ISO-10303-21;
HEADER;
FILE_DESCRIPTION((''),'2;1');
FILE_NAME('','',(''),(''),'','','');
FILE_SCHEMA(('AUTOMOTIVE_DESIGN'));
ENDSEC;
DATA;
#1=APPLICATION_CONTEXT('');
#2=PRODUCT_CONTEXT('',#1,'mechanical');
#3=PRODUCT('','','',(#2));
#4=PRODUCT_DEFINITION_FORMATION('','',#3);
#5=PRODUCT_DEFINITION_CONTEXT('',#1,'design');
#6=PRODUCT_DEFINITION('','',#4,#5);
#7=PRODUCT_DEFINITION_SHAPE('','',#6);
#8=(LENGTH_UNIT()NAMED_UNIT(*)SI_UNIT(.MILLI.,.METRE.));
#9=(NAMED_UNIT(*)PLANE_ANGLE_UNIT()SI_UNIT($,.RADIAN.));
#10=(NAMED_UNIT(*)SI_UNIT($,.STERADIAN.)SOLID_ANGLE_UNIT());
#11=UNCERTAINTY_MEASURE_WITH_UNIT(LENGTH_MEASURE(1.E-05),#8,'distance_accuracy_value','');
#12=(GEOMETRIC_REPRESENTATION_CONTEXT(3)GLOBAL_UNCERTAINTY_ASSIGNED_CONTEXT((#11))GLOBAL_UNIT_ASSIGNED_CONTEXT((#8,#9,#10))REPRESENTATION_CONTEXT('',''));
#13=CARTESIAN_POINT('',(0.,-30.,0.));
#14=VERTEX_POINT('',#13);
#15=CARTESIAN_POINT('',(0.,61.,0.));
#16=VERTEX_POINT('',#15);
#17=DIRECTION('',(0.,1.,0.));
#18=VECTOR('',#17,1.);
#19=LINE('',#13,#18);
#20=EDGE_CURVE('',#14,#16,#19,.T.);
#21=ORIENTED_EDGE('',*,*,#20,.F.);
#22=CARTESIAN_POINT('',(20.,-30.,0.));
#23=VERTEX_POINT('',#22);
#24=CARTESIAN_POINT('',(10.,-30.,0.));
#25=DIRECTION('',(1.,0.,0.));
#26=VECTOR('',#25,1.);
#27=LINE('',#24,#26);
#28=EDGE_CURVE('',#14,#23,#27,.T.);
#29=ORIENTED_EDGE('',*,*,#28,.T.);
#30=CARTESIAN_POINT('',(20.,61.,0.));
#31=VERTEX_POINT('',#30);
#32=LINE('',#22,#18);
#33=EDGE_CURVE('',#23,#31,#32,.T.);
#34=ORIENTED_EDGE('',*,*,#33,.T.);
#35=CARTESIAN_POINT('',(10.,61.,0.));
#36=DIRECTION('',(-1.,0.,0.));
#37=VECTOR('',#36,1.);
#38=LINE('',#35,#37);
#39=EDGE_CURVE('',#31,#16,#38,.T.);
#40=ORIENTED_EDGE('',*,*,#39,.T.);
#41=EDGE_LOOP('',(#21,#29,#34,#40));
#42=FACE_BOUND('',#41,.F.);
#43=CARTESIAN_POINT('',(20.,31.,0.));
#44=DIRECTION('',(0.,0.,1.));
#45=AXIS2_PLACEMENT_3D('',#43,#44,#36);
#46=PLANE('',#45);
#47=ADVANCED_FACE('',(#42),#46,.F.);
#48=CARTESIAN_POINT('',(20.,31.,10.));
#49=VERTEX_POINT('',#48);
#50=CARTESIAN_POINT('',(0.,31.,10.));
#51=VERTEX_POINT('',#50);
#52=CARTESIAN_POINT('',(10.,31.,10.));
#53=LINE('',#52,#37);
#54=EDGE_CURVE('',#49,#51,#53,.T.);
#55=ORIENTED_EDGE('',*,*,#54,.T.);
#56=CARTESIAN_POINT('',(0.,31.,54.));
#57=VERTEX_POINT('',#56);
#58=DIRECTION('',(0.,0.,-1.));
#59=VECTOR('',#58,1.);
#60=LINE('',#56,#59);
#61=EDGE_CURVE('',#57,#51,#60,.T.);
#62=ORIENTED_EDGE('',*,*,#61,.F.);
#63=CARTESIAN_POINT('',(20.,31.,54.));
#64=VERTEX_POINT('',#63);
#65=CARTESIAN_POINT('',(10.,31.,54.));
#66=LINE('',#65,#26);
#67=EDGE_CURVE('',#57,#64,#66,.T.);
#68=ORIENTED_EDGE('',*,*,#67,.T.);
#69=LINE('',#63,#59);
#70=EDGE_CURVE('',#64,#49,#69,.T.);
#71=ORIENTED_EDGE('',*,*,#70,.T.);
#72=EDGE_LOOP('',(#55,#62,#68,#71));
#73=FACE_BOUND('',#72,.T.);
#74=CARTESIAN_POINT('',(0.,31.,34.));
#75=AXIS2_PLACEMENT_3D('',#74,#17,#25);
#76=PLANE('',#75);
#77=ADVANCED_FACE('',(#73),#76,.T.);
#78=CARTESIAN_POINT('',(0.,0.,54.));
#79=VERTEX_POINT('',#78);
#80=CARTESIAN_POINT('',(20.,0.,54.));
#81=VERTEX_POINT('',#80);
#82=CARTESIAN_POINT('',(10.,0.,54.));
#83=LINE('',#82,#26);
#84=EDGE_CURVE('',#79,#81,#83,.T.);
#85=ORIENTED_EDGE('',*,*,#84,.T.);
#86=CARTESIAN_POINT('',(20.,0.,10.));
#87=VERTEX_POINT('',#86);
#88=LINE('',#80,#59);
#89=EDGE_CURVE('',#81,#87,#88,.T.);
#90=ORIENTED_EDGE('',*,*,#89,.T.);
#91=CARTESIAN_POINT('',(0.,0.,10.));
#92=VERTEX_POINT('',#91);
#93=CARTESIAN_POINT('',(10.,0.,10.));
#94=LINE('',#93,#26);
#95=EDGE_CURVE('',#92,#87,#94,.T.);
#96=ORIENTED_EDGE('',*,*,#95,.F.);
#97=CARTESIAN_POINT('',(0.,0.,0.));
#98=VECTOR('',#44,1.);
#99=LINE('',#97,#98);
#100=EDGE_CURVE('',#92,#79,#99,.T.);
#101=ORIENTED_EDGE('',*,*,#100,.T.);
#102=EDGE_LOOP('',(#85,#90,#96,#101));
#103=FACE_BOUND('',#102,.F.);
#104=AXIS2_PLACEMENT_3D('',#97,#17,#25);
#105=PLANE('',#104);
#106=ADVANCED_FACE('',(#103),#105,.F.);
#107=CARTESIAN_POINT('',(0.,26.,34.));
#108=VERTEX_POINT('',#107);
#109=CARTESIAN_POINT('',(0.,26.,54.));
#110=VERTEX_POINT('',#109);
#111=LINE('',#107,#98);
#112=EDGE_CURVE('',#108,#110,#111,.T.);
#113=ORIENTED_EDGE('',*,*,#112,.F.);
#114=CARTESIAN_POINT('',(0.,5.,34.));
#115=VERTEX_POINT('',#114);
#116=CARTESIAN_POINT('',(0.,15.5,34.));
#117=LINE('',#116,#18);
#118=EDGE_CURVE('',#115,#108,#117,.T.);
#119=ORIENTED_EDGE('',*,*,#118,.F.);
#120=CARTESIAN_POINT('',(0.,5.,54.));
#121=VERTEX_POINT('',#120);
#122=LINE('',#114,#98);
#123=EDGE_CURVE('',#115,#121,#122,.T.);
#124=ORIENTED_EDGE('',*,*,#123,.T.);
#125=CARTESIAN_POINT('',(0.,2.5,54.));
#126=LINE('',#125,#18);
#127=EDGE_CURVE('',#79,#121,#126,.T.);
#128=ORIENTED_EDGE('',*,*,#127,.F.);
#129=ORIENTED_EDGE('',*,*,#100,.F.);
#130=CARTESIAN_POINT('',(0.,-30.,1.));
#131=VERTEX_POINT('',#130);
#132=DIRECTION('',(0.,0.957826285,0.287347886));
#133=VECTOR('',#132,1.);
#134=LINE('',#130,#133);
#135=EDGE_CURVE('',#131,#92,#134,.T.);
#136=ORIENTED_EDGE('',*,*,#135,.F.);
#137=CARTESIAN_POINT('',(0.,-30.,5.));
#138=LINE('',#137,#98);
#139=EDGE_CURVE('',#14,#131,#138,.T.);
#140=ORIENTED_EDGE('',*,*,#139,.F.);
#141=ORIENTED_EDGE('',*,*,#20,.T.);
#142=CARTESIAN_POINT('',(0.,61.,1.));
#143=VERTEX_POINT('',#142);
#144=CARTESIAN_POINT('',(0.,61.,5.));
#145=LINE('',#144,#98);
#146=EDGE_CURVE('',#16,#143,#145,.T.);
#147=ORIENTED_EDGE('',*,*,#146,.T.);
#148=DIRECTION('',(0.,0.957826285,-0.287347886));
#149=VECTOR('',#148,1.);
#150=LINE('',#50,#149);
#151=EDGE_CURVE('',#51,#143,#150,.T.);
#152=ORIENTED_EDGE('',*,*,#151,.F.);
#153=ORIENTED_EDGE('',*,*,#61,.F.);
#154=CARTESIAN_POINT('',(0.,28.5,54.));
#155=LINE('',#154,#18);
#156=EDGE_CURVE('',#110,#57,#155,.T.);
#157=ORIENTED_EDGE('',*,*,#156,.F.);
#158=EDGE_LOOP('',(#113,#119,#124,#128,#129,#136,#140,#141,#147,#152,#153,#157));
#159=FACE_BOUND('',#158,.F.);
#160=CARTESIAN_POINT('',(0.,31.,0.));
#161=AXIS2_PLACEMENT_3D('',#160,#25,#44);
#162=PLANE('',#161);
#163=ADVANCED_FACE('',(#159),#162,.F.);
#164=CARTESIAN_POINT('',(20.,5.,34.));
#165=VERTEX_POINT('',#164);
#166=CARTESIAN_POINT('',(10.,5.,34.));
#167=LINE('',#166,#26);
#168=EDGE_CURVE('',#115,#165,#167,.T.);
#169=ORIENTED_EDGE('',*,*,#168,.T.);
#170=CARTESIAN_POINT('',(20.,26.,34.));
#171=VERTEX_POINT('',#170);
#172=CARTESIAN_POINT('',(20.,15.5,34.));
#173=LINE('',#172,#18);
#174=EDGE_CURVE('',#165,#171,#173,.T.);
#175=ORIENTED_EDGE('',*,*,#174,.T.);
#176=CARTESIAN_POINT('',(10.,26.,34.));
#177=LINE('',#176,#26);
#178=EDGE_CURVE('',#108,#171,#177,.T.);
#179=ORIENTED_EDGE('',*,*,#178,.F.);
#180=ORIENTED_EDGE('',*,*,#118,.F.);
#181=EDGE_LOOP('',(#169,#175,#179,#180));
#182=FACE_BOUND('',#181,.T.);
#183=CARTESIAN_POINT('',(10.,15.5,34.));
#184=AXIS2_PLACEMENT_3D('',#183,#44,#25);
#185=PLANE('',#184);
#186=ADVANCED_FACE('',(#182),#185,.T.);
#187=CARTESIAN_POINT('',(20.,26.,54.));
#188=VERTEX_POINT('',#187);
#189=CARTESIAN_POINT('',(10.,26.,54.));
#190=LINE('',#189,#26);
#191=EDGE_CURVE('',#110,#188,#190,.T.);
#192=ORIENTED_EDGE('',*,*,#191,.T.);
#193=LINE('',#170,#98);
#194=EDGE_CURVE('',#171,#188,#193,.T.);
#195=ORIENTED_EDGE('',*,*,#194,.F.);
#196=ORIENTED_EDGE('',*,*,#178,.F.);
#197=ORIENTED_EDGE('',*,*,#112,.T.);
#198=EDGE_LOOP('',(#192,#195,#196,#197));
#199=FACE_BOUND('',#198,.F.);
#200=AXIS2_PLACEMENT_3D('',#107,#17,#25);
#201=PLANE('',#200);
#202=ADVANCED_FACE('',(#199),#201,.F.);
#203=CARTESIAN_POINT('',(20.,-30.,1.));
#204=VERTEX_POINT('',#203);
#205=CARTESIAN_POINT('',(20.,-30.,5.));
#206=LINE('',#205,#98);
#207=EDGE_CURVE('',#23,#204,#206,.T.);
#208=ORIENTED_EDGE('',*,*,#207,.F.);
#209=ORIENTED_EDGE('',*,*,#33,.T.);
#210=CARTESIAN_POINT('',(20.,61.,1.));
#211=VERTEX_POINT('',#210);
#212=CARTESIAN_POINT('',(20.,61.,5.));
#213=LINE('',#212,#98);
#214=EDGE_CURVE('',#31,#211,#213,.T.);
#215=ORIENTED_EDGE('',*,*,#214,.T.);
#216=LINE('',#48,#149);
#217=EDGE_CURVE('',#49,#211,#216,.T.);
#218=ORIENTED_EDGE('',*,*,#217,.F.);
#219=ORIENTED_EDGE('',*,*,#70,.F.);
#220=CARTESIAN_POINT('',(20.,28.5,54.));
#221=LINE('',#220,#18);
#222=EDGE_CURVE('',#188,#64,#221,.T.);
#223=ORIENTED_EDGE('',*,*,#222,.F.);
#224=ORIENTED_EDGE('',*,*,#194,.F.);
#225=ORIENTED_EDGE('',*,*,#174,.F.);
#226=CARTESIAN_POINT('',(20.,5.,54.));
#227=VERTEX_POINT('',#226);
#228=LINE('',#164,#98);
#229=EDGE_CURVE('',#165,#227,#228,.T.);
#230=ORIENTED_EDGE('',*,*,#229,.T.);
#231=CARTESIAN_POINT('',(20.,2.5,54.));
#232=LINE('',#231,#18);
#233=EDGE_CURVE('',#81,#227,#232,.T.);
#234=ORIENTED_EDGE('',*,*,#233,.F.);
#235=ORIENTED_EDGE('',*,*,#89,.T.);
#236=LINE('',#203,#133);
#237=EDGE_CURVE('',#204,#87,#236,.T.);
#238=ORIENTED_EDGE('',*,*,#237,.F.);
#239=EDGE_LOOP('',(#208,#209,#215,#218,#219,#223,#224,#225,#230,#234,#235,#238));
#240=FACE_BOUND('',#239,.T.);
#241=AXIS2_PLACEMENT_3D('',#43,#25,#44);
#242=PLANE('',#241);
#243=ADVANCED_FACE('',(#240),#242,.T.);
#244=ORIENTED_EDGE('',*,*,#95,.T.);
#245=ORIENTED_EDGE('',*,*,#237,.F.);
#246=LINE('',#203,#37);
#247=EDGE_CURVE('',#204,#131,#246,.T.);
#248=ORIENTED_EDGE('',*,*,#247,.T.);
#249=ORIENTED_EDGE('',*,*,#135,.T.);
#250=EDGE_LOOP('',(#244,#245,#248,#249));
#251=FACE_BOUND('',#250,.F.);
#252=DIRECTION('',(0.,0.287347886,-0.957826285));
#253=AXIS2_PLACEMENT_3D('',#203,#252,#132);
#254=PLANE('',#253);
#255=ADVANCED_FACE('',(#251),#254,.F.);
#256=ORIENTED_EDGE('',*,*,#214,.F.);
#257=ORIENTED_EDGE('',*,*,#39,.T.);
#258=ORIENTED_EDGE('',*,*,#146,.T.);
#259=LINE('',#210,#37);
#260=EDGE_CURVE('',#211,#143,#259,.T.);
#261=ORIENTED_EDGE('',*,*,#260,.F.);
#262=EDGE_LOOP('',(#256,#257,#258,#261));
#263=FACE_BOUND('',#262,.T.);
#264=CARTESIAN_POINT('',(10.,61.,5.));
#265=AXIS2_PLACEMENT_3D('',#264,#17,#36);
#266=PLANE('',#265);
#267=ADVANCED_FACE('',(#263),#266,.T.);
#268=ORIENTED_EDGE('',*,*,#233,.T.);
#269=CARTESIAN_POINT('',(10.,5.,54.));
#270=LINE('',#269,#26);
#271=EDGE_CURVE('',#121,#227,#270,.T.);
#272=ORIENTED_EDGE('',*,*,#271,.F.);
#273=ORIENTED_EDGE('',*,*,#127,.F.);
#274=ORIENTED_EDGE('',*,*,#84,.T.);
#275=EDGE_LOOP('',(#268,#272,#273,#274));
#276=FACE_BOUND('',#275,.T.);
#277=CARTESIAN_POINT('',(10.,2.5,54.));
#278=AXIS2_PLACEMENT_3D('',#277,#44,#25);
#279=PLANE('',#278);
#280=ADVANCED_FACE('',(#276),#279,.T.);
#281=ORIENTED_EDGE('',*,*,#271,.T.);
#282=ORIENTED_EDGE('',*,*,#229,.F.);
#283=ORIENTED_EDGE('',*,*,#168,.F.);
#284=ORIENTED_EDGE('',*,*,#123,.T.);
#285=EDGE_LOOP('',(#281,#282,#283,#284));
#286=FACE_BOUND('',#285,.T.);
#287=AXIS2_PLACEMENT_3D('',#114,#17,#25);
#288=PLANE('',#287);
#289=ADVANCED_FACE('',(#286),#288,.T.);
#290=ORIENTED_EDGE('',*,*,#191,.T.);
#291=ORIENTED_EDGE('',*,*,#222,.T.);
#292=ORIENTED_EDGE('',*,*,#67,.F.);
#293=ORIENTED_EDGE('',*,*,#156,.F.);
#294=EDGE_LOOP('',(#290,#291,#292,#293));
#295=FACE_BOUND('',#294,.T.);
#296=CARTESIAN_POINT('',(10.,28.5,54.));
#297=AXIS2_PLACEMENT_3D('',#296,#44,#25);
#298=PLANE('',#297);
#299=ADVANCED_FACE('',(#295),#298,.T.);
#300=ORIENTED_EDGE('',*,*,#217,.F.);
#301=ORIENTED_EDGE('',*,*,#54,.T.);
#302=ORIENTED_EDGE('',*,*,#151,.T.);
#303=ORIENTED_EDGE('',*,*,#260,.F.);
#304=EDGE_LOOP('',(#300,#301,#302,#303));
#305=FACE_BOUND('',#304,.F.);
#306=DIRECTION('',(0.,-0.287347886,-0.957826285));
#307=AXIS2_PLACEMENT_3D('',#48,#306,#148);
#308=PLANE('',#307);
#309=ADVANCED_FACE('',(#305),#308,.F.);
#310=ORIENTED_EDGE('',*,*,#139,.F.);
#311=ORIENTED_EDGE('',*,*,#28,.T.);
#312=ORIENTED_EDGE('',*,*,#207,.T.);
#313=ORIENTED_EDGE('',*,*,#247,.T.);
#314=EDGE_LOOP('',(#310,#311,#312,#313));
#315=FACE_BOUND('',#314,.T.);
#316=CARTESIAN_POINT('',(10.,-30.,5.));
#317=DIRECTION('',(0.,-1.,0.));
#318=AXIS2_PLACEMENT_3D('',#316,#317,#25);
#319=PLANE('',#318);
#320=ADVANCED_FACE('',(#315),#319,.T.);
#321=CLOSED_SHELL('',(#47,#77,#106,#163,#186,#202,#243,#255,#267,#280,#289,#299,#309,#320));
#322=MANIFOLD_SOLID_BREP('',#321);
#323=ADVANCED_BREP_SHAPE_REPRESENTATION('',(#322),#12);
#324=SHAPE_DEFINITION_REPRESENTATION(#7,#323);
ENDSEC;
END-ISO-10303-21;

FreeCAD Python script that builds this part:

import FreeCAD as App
import Part
import Sketcher


def add_polygon(sketch, points):
    """Adds a closed chain of lines whose ends are joined by coincident constraints."""
    first, n = sketch.GeometryCount, len(points)
    for a, b in zip(points, points[1:] + points[:1]):
        sketch.addGeometry(Part.LineSegment(App.Vector(*a, 0), App.Vector(*b, 0)), False)
    for i in range(n):
        sketch.addConstraint(Sketcher.Constraint("Coincident", first + i, 2, first + (i + 1) % n, 1))

doc = App.newDocument("Part")
body = doc.addObject("PartDesign::Body", "Body")

# Sketch on XY plane
sketch1 = body.newObject("Sketcher::SketchObject", "Sketch")
sketch1.AttachmentSupport = (doc.getObject("XY_Plane"), [""])
sketch1.MapMode = "FlatFace"
add_polygon(sketch1, [(0, 31), (0, 0), (20, 0), (20, 31)])  # lines 0-3
sketch1.addConstraint([
    Sketcher.Constraint("Vertical", 0),
    Sketcher.Constraint("Horizontal", 1),
    Sketcher.Constraint("Vertical", 2),
    Sketcher.Constraint("Horizontal", 3),
    Sketcher.Constraint("Coincident", 0, 2, -1, 1),
    Sketcher.Constraint("DistanceX", 1, 1, 1, 2, 20.0),
    Sketcher.Constraint("DistanceY", 0, 2, 0, 1, 31.0),
])
pad1 = body.newObject("PartDesign::Pad", "Pad")
pad1.Profile = sketch1
pad1.Length = 34

# Sketch on XY plane
sketch2 = body.newObject("Sketcher::SketchObject", "Sketch001")
sketch2.AttachmentSupport = (doc.getObject("XY_Plane"), [""])
sketch2.MapMode = "FlatFace"
sketch2.AttachmentOffset = App.Placement(App.Vector(0, 0, 34), App.Rotation())
add_polygon(sketch2, [(0, 31), (0, 26), (20, 26), (20, 31)])  # lines 0-3
add_polygon(sketch2, [(0, 5), (0, 0), (20, 0), (20, 5)])  # lines 4-7
sketch2.addConstraint([
    Sketcher.Constraint("Vertical", 0),
    Sketcher.Constraint("Horizontal", 1),
    Sketcher.Constraint("Vertical", 2),
    Sketcher.Constraint("Horizontal", 3),
    Sketcher.Constraint("Vertical", 4),
    Sketcher.Constraint("Horizontal", 5),
    Sketcher.Constraint("Vertical", 6),
    Sketcher.Constraint("Horizontal", 7),
    Sketcher.Constraint("Coincident", 4, 2, -1, 1),
    Sketcher.Constraint("PointOnObject", 0, 2, -2),
    Sketcher.Constraint("Vertical", 2, 2, 5, 2),
    Sketcher.Constraint("Equal", 2, 4),
    Sketcher.Constraint("DistanceX", 1, 1, 1, 2, 20.0),
    Sketcher.Constraint("DistanceY", 0, 2, 0, 1, 5.0),
    Sketcher.Constraint("DistanceY", -1, 1, 0, 2, 26.0),
])
pad2 = body.newObject("PartDesign::Pad", "Pad001")
pad2.Profile = sketch2
pad2.Length = 20

# Sketch on XZ plane
sketch3 = body.newObject("Sketcher::SketchObject", "Sketch002")
sketch3.AttachmentSupport = (doc.getObject("XZ_Plane"), [""])
sketch3.MapMode = "FlatFace"
add_polygon(sketch3, [(0, 10), (0, 0), (20, 0), (20, 10)])  # lines 0-3
sketch3.addConstraint([
    Sketcher.Constraint("Vertical", 0),
    Sketcher.Constraint("Horizontal", 1),
    Sketcher.Constraint("Vertical", 2),
    Sketcher.Constraint("Horizontal", 3),
    Sketcher.Constraint("Coincident", 0, 2, -1, 1),
    Sketcher.Constraint("DistanceX", 1, 1, 1, 2, 20.0),
    Sketcher.Constraint("DistanceY", 0, 2, 0, 1, 10.0),
])
pad3 = body.newObject("PartDesign::Pad", "Pad002")
pad3.Profile = sketch3
pad3.Length = 30

# Sketch on XZ plane
sketch4 = body.newObject("Sketcher::SketchObject", "Sketch003")
sketch4.AttachmentSupport = (doc.getObject("XZ_Plane"), [""])
sketch4.MapMode = "FlatFace"
sketch4.AttachmentOffset = App.Placement(App.Vector(0, 0, -31), App.Rotation())
add_polygon(sketch4, [(20, 10), (20, 0), (0, 0), (0, 10)])  # lines 0-3
sketch4.addConstraint([
    Sketcher.Constraint("Vertical", 0),
    Sketcher.Constraint("Horizontal", 1),
    Sketcher.Constraint("Vertical", 2),
    Sketcher.Constraint("Horizontal", 3),
    Sketcher.Constraint("Coincident", 1, 2, -1, 1),
    Sketcher.Constraint("DistanceX", 1, 2, 1, 1, 20.0),
    Sketcher.Constraint("DistanceY", 0, 2, 0, 1, 10.0),
])
pad4 = body.newObject("PartDesign::Pad", "Pad003")
pad4.Profile = sketch4
pad4.Length = 30
pad4.Reversed = True

# Sketch on YZ plane
sketch5 = body.newObject("Sketcher::SketchObject", "Sketch004")
sketch5.AttachmentSupport = (doc.getObject("YZ_Plane"), [""])
sketch5.MapMode = "FlatFace"
sketch5.AttachmentOffset = App.Placement(App.Vector(0, 0, 20), App.Rotation())
add_polygon(sketch5, [(-30, 1), (0, 10), (-30, 10)])  # lines 0-2
add_polygon(sketch5, [(31, 10), (61, 1), (61, 10)])  # lines 3-5
sketch5.addConstraint([
    Sketcher.Constraint("Horizontal", 1),
    Sketcher.Constraint("Vertical", 2),
    Sketcher.Constraint("Vertical", 4),
    Sketcher.Constraint("Horizontal", 5),
    Sketcher.Constraint("PointOnObject", 0, 2, -2),
    Sketcher.Constraint("Horizontal", 2, 2, 3, 2),
    Sketcher.Constraint("Horizontal", 1, 2, 4, 2),
    Sketcher.Constraint("Equal", 1, 5),
    Sketcher.Constraint("DistanceX", 1, 2, 1, 1, 30.0),
    Sketcher.Constraint("DistanceY", 2, 2, 2, 1, 9.0),
    Sketcher.Constraint("DistanceY", -1, 1, 0, 2, 10.0),
    Sketcher.Constraint("DistanceX", -1, 1, 3, 2, 61.0),
])
pocket1 = body.newObject("PartDesign::Pocket", "Pocket")
pocket1.Profile = sketch5
pocket1.Length = 20

doc.recompute()
